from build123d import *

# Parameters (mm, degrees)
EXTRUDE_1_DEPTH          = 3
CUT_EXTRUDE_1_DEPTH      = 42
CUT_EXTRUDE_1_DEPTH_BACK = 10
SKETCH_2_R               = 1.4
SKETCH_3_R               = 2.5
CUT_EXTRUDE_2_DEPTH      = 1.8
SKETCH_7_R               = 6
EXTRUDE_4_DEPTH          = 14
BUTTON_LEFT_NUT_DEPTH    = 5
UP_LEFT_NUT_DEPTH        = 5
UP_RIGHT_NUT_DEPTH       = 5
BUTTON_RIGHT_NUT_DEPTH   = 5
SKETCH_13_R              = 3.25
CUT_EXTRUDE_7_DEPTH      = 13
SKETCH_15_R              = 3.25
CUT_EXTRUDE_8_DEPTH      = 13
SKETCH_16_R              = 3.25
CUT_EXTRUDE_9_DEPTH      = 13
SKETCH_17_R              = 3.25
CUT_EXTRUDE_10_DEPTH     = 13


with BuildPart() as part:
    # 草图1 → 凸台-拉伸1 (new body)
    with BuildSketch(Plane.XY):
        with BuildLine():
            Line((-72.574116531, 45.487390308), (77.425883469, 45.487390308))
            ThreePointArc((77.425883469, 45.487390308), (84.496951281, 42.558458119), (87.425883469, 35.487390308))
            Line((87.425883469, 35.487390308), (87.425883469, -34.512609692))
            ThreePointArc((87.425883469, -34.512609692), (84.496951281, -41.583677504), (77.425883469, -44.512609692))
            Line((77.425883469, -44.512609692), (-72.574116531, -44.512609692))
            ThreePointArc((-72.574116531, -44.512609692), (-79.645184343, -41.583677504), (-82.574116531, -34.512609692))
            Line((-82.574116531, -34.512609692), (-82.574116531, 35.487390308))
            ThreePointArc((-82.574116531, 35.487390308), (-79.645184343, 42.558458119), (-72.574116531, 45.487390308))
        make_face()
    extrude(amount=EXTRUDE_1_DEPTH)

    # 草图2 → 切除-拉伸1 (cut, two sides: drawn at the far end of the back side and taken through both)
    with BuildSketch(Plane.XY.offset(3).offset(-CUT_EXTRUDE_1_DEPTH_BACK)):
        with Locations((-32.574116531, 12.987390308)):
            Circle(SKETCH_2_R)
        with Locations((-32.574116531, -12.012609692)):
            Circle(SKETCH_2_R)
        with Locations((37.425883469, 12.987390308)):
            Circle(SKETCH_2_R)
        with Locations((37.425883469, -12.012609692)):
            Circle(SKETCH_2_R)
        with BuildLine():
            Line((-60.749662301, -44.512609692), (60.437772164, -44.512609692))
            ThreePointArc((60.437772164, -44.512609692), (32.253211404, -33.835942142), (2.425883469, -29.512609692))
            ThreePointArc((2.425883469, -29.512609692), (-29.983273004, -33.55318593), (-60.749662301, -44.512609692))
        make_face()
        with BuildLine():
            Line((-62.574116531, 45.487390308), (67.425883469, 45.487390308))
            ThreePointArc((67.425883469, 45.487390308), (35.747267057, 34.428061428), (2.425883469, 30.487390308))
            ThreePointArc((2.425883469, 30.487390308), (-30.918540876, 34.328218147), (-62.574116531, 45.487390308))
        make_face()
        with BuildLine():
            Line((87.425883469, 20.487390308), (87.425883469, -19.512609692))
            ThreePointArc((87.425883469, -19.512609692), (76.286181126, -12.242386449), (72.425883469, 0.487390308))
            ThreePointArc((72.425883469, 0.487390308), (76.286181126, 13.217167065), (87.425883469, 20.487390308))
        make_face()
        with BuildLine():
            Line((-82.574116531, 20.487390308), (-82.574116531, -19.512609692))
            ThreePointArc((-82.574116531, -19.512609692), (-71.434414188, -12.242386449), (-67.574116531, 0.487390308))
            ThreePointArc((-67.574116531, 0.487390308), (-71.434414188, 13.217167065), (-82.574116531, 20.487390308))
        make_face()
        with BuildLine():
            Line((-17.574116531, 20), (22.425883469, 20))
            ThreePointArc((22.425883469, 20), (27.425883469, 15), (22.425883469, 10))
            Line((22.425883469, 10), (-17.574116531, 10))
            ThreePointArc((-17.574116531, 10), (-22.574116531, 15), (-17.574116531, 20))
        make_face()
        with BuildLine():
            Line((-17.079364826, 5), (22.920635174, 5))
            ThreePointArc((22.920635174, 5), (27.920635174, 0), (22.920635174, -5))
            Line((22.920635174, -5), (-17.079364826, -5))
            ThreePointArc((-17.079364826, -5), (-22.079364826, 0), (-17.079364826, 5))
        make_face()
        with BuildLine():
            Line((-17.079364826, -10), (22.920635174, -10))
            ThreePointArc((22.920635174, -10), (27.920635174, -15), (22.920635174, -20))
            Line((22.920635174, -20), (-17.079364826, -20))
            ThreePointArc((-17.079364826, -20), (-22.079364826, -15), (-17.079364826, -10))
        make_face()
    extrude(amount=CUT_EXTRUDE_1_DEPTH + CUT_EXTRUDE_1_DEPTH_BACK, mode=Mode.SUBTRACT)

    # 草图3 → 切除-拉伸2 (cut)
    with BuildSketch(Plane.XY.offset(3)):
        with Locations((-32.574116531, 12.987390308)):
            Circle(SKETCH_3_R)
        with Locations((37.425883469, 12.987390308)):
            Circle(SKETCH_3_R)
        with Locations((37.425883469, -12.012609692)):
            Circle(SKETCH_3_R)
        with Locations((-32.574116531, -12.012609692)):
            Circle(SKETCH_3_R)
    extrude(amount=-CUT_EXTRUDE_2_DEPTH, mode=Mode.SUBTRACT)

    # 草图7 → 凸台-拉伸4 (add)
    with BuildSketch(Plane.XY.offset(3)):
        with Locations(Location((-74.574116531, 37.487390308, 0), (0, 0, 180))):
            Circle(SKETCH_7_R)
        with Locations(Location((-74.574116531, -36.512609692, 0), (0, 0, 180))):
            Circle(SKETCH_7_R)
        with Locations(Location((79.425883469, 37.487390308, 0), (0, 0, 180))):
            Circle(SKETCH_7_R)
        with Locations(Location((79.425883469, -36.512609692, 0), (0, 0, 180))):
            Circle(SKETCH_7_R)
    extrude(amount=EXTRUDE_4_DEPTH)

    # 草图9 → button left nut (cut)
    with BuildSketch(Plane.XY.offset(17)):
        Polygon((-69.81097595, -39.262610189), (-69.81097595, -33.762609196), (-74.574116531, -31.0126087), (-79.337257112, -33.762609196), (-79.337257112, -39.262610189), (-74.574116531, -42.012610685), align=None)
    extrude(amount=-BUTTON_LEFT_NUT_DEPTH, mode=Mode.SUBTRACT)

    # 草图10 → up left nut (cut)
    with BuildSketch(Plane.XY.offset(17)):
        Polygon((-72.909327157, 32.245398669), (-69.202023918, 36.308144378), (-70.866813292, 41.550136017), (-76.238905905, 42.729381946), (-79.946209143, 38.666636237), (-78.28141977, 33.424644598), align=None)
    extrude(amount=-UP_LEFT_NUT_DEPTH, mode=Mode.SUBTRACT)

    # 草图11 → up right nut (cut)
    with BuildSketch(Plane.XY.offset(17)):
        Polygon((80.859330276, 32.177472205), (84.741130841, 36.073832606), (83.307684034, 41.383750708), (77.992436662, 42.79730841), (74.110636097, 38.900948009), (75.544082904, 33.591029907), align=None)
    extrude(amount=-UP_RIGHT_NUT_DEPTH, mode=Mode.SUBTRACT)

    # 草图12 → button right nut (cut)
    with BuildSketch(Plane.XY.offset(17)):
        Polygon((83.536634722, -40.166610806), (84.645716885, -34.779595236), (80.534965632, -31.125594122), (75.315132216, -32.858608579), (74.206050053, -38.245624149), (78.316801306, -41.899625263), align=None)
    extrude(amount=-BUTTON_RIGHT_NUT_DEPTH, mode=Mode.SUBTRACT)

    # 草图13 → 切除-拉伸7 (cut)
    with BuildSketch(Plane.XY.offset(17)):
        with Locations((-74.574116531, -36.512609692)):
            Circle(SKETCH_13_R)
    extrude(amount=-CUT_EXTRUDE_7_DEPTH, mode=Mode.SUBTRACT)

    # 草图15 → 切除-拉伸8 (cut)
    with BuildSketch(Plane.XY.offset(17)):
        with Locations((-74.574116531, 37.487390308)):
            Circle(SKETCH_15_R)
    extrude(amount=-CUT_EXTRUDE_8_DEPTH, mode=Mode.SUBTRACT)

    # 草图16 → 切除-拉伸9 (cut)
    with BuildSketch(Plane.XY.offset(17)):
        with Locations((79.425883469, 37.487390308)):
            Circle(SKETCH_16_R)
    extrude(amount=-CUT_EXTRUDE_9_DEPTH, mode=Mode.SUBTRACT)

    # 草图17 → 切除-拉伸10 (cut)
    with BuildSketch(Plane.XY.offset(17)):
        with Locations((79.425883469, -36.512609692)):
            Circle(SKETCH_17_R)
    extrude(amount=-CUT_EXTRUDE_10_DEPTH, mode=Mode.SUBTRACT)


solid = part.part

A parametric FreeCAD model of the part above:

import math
import FreeCAD as App
import Part
import Sketcher

V = App.Vector
Q = App.Units.Quantity

doc = App.newDocument("Part")
params = doc.addObject("Spreadsheet::Sheet", "Params")
for row, (alias, value) in enumerate([
    ("sketch1_radius", "10 mm"),
    ("sketch1_width", "150 mm"),
    ("sketch1_height", "70 mm"),
    ("pad1_length", "3 mm"),
    ("sketch2_radius", "150 mm"),
    ("sketch2_radius2", "5 mm"),
    ("sketch2_diameter", "2.8 mm"),
    ("sketch2_width", "130 mm"),
    ("sketch2_width2", "40 mm"),
    ("sketch3_diameter", "5 mm"),
    ("pocket2_length", "1.8 mm"),
    ("sketch4_diameter", "12 mm"),
    ("pad2_length", "14 mm"),
    ("sketch5_height", "5.500001 mm"),
    ("pocket3_length", "5 mm"),
    ("sketch6_length", "5.5 mm"),
    ("pocket4_length", "5 mm"),
    ("sketch7_length", "5.5 mm"),
    ("pocket5_length", "5 mm"),
    ("sketch8_length", "5.5 mm"),
    ("pocket6_length", "5 mm"),
    ("sketch9_diameter", "6.5 mm"),
    ("pocket7_length", "13 mm"),
    ("sketch10_diameter", "6.5 mm"),
    ("pocket8_length", "13 mm"),
    ("sketch11_diameter", "6.5 mm"),
    ("pocket9_length", "13 mm"),
    ("sketch12_diameter", "6.5 mm"),
    ("pocket10_length", "13 mm"),
], start=1):
    params.set(f"A{row}", alias)
    params.set(f"B{row}", "=" + value)
    params.setAlias(f"B{row}", alias)

body = doc.addObject("PartDesign::Body", "Body")

# Sketch on XY plane
sketch1 = body.newObject("Sketcher::SketchObject", "Sketch")
sketch1.AttachmentSupport = (doc.getObject("XY_Plane"), [""])
sketch1.MapMode = "FlatFace"
sketch1.addGeometry([
    Part.LineSegment(V(77, 45, 0), V(-73, 45, 0)),  # 0
    Part.ArcOfCircle(Part.Circle(V(-73, 35, 0), V(0, 0, 1), 10), math.radians(90), math.radians(180)),  # 1
    Part.LineSegment(V(-83, 35, 0), V(-83, -35, 0)),  # 2
    Part.ArcOfCircle(Part.Circle(V(-73, -35, 0), V(0, 0, 1), 10), math.radians(180), math.radians(270)),  # 3
    Part.LineSegment(V(-73, -45, 0), V(77, -45, 0)),  # 4
    Part.ArcOfCircle(Part.Circle(V(77, -35, 0), V(0, 0, 1), 10), math.radians(-90), math.radians(0)),  # 5
    Part.LineSegment(V(87, -35, 0), V(87, 35, 0)),  # 6
    Part.ArcOfCircle(Part.Circle(V(77, 35, 0), V(0, 0, 1), 10), math.radians(0), math.radians(90)),  # 7
], False)
sketch1.addConstraint([
    Sketcher.Constraint("Tangent", 0, 2, 1, 1),
    Sketcher.Constraint("Tangent", 1, 2, 2, 1),
    Sketcher.Constraint("Tangent", 2, 2, 3, 1),
    Sketcher.Constraint("Tangent", 3, 2, 4, 1),
    Sketcher.Constraint("Tangent", 4, 2, 5, 1),
    Sketcher.Constraint("Tangent", 5, 2, 6, 1),
    Sketcher.Constraint("Tangent", 6, 2, 7, 1),
    Sketcher.Constraint("Tangent", 7, 2, 0, 1),
    Sketcher.Constraint("Horizontal", 0),
    Sketcher.Constraint("Vertical", 2),
    Sketcher.Constraint("Horizontal", 4),
    Sketcher.Constraint("Vertical", 6),
    Sketcher.Constraint("Equal", 1, 3),
    Sketcher.Constraint("Equal", 3, 5),
    Sketcher.Constraint("Equal", 5, 7),
    Sketcher.Constraint("Radius", 1, 10.0),
    Sketcher.Constraint("DistanceX", 0, 2, 0, 1, 150.0),
    Sketcher.Constraint("DistanceY", 2, 2, 2, 1, 70.0),
    Sketcher.Constraint("DistanceY", -1, 1, 1, 3, 35.48739),
    Sketcher.Constraint("DistanceX", 1, 3, -1, 1, 72.574117),
])
sketch1.setExpression("Constraints[15]", "Params.sketch1_radius")
sketch1.setExpression("Constraints[16]", "Params.sketch1_width")
sketch1.setExpression("Constraints[17]", "Params.sketch1_height")
pad1 = body.newObject("PartDesign::Pad", "Pad")
pad1.Profile = sketch1
pad1.setExpression("Length", "Params.pad1_length")

# Sketch on XY plane
sketch2 = body.newObject("Sketcher::SketchObject", "Sketch001")
sketch2.AttachmentSupport = (doc.getObject("XY_Plane"), [""])
sketch2.MapMode = "FlatFace"
sketch2.AttachmentOffset = App.Placement(V(0, 0, 3), App.Rotation())
sketch2.addGeometry([
    Part.Circle(V(-32.6, 13, 0), V(0, 0, 1), 1.4),  # 0
    Part.Circle(V(-32.6, -12, 0), V(0, 0, 1), 1.4),  # 1
    Part.Circle(V(37.4, 13, 0), V(0, 0, 1), 1.4),  # 2
    Part.Circle(V(37.4, -12, 0), V(0, 0, 1), 1.4),  # 3
    Part.LineSegment(V(-60.7, -44.5, 0), V(60.4, -44.5, 0)),  # 4
    Part.ArcOfCircle(Part.Circle(V(-2.4, -167.8, 0), V(0, 0, 1), 138.4), math.radians(63), math.radians(88)),  # 5
    Part.ArcOfCircle(Part.Circle(V(4.7, -179.5, 0), V(0, 0, 1), 150), math.radians(91), math.radians(116)),  # 6
    Part.LineSegment(V(67.4, 45.5, 0), V(-62.6, 45.5, 0)),  # 7
    Part.ArcOfCircle(Part.Circle(V(2.8, 180.5, 0), V(0, 0, 1), 150), math.radians(-116), math.radians(-90)),  # 8
    Part.ArcOfCircle(Part.Circle(V(1.1, 184.6, 0), V(0, 0, 1), 154.1), math.radians(-90), math.radians(-65)),  # 9
    Part.LineSegment(V(87.4, -19.5, 0), V(87.4, 20.5, 0)),  # 10
    Part.ArcOfCircle(Part.Circle(V(91.8, 1.5, 0), V(0, 0, 1), 19.4), math.radians(103), math.radians(183)),  # 11
    Part.ArcOfCircle(Part.Circle(V(91.8, -0.6, 0), V(0, 0, 1), 19.4), math.radians(177), math.radians(257)),  # 12
    Part.LineSegment(V(-82.6, 20.5, 0), V(-82.6, -19.5, 0)),  # 13
    Part.ArcOfCircle(Part.Circle(V(-87, -0.6, 0), V(0, 0, 1), 19.4), math.radians(-77), math.radians(3)),  # 14
    Part.ArcOfCircle(Part.Circle(V(-87, 1.5, 0), V(0, 0, 1), 19.4), math.radians(-3), math.radians(77)),  # 15
    Part.LineSegment(V(22.4, 20, 0), V(-17.6, 20, 0)),  # 16
    Part.ArcOfCircle(Part.Circle(V(-17.6, 15, 0), V(0, 0, 1), 5), math.radians(90), math.radians(270)),  # 17
    Part.LineSegment(V(-17.6, 10, 0), V(22.4, 10, 0)),  # 18
    Part.ArcOfCircle(Part.Circle(V(22.4, 15, 0), V(0, 0, 1), 5), math.radians(-90), math.radians(90)),  # 19
    Part.LineSegment(V(22.9, 5, 0), V(-17.1, 5, 0)),  # 20
    Part.ArcOfCircle(Part.Circle(V(-17.1, 0, 0), V(0, 0, 1), 5), math.radians(90), math.radians(270)),  # 21
    Part.LineSegment(V(-17.1, -5, 0), V(22.9, -5, 0)),  # 22
    Part.ArcOfCircle(Part.Circle(V(22.9, 0, 0), V(0, 0, 1), 5), math.radians(-90), math.radians(90)),  # 23
    Part.LineSegment(V(22.9, -10, 0), V(-17.1, -10, 0)),  # 24
    Part.ArcOfCircle(Part.Circle(V(-17.1, -15, 0), V(0, 0, 1), 5), math.radians(90), math.radians(270)),  # 25
    Part.LineSegment(V(-17.1, -20, 0), V(22.9, -20, 0)),  # 26
    Part.ArcOfCircle(Part.Circle(V(22.9, -15, 0), V(0, 0, 1), 5), math.radians(-90), math.radians(90)),  # 27
], False)
sketch2.addConstraint([
    Sketcher.Constraint("Coincident", 4, 2, 5, 1),
    Sketcher.Constraint("Coincident", 5, 2, 6, 1),
    Sketcher.Constraint("Coincident", 6, 2, 4, 1),
    Sketcher.Constraint("Coincident", 7, 2, 8, 1),
    Sketcher.Constraint("Coincident", 8, 2, 9, 1),
    Sketcher.Constraint("Coincident", 9, 2, 7, 1),
    Sketcher.Constraint("Coincident", 10, 2, 11, 1),
    Sketcher.Constraint("Coincident", 11, 2, 12, 1),
    Sketcher.Constraint("Coincident", 12, 2, 10, 1),
    Sketcher.Constraint("Coincident", 13, 2, 14, 1),
    Sketcher.Constraint("Coincident", 14, 2, 15, 1),
    Sketcher.Constraint("Coincident", 15, 2, 13, 1),
    Sketcher.Constraint("Tangent", 16, 2, 17, 1),
    Sketcher.Constraint("Tangent", 17, 2, 18, 1),
    Sketcher.Constraint("Tangent", 18, 2, 19, 1),
    Sketcher.Constraint("Tangent", 19, 2, 16, 1),
    Sketcher.Constraint("Tangent", 20, 2, 21, 1),
    Sketcher.Constraint("Tangent", 21, 2, 22, 1),
    Sketcher.Constraint("Tangent", 22, 2, 23, 1),
    Sketcher.Constraint("Tangent", 23, 2, 20, 1),
    Sketcher.Constraint("Tangent", 24, 2, 25, 1),
    Sketcher.Constraint("Tangent", 25, 2, 26, 1),
    Sketcher.Constraint("Tangent", 26, 2, 27, 1),
    Sketcher.Constraint("Tangent", 27, 2, 24, 1),
    Sketcher.Constraint("Horizontal", 4),
    Sketcher.Constraint("Horizontal", 7),
    Sketcher.Constraint("Vertical", 10),
    Sketcher.Constraint("Vertical", 13),
    Sketcher.Constraint("Horizontal", 16),
    Sketcher.Constraint("Horizontal", 18),
    Sketcher.Constraint("Horizontal", 20),
    Sketcher.Constraint("Horizontal", 22),
    Sketcher.Constraint("Horizontal", 24),
    Sketcher.Constraint("Horizontal", 26),
    Sketcher.Constraint("Equal", 0, 1),
    Sketcher.Constraint("Equal", 1, 2),
    Sketcher.Constraint("Equal", 2, 3),
    Sketcher.Constraint("Equal", 6, 8),
    Sketcher.Constraint("Equal", 11, 12),
    Sketcher.Constraint("Equal", 12, 14),
    Sketcher.Constraint("Equal", 14, 15),
    Sketcher.Constraint("Equal", 19, 21),
    Sketcher.Constraint("Equal", 23, 25),
    Sketcher.Constraint("PointOnObject", 21, 3, -1),
    Sketcher.Constraint("Horizontal", 0, 3, 2, 3),
    Sketcher.Constraint("Horizontal", 1, 3, 3, 3),
    Sketcher.Constraint("Horizontal", 12, 3, 14, 3),
    Sketcher.Constraint("Horizontal", 11, 3, 15, 3),
    Sketcher.Constraint("Horizontal", 12, 2, 13, 2),
    Sketcher.Constraint("Horizontal", 11, 2, 14, 2),
    Sketcher.Constraint("Vertical", 0, 3, 1, 3),
    Sketcher.Constraint("Vertical", 2, 3, 3, 3),
    Sketcher.Constraint("Vertical", 11, 3, 12, 3),
    Sketcher.Constraint("Vertical", 21, 3, 25, 3),
    Sketcher.Constraint("Vertical", 23, 3, 27, 3),
    Sketcher.Constraint("Vertical", 5, 2, 8, 2),
    Sketcher.Constraint("Equal", 18, 20),
    Sketcher.Constraint("Equal", 26, 10),
    Sketcher.Constraint("Radius", 6, 150.0),
    Sketcher.Constraint("Radius", 17, 5.0),
    Sketcher.Constraint("Diameter", 0, 2.8),
    Sketcher.Constraint("DistanceX", 7, 2, 7, 1, 130.0),
    Sketcher.Constraint("DistanceX", 16, 2, 16, 1, 40.0),
    Sketcher.Constraint("DistanceY", -1, 1, 17, 3, 15.0),
    Sketcher.Constraint("DistanceY", 25, 3, -1, 1, 15.0),
    Sketcher.Constraint("DistanceY", 1, 3, 0, 3, 25.0),
    Sketcher.Constraint("DistanceX", 0, 3, 2, 3, 70.0),
    Sketcher.Constraint("DistanceX", 0, 3, 17, 3, 15.0),
    Sketcher.Constraint("DistanceX", 5, 2, 3, 3, 35.0),
    Sketcher.Constraint("DistanceX", 7, 2, 0, 3, 30.0),
    Sketcher.Constraint("DistanceX", 9, 2, 10, 2, 20.0),
    Sketcher.Constraint("DistanceY", 10, 2, 9, 2, 25.0),
    Sketcher.Constraint("DistanceX", 11, 2, 10, 2, 15.0),
    Sketcher.Constraint("DistanceY", 4, 2, 12, 2, 25.0),
    Sketcher.Constraint("DistanceX", 13, 2, 1, 3, 50.0),
    Sketcher.Constraint("DistanceY", 4, 2, 3, 3, 32.5),
    Sketcher.Constraint("DistanceY", 5, 2, 3, 3, 17.5),
    Sketcher.Constraint("DistanceY", 0, 3, 8, 2, 17.5),
    Sketcher.Constraint("Radius", 9, 154.103768),
    Sketcher.Constraint("Radius", 5, 138.421457),
    Sketcher.Constraint("Radius", 11, 19.446548),
    Sketcher.Constraint("DistanceX", 4, 1, 4, 2, 121.187434),
    Sketcher.Constraint("DistanceY", -1, 1, 0, 3, 12.98739),
    Sketcher.Constraint("DistanceY", 5, 3, -1, 1, 167.84997),
    Sketcher.Constraint("DistanceX", -1, 1, 9, 3, 1.09557),
    Sketcher.Constraint("DistanceX", 17, 3, 21, 3, 0.494752),
])
sketch2.setExpression("Constraints[58]", "Params.sketch2_radius")
sketch2.setExpression("Constraints[59]", "Params.sketch2_radius2")
sketch2.setExpression("Constraints[60]", "Params.sketch2_diameter")
sketch2.setExpression("Constraints[61]", "Params.sketch2_width")
sketch2.setExpression("Constraints[62]", "Params.sketch2_width2")
pocket1 = body.newObject("PartDesign::Pocket", "Pocket")
pocket1.Profile = sketch2
pocket1.Type = "ThroughAll"
pocket1.Midplane = True

# Sketch on XY plane
sketch3 = body.newObject("Sketcher::SketchObject", "Sketch002")
sketch3.AttachmentSupport = (doc.getObject("XY_Plane"), [""])
sketch3.MapMode = "FlatFace"
sketch3.AttachmentOffset = App.Placement(V(0, 0, 3), App.Rotation())
sketch3.addGeometry([
    Part.Circle(V(-32.6, 13, 0), V(0, 0, 1), 2.5),
    Part.Circle(V(37.4, 13, 0), V(0, 0, 1), 2.5),
    Part.Circle(V(37.4, -12, 0), V(0, 0, 1), 2.5),
    Part.Circle(V(-32.6, -12, 0), V(0, 0, 1), 2.5),
], False)
sketch3.addConstraint([
    Sketcher.Constraint("Equal", 0, 1),
    Sketcher.Constraint("Equal", 1, 2),
    Sketcher.Constraint("Equal", 2, 3),
    Sketcher.Constraint("Horizontal", 0, 3, 1, 3),
    Sketcher.Constraint("Horizontal", 2, 3, 3, 3),
    Sketcher.Constraint("Vertical", 1, 3, 2, 3),
    Sketcher.Constraint("Vertical", 0, 3, 3, 3),
    Sketcher.Constraint("Diameter", 0, 5.0),
    Sketcher.Constraint("DistanceX", 0, 3, 1, 3, 70.0),
    Sketcher.Constraint("DistanceY", 2, 3, 1, 3, 25.0),
    Sketcher.Constraint("DistanceY", -1, 1, 0, 3, 12.98739),
    Sketcher.Constraint("DistanceX", 0, 3, -1, 1, 32.574117),
])
sketch3.setExpression("Constraints[7]", "Params.sketch3_diameter")
pocket2 = body.newObject("PartDesign::Pocket", "Pocket001")
pocket2.Profile = sketch3
pocket2.setExpression("Length", "Params.pocket2_length")

# Sketch on XY plane
sketch4 = body.newObject("Sketcher::SketchObject", "Sketch003")
sketch4.AttachmentSupport = (doc.getObject("XY_Plane"), [""])
sketch4.MapMode = "FlatFace"
sketch4.AttachmentOffset = App.Placement(V(0, 0, 3), App.Rotation())
sketch4.addGeometry([
    Part.Circle(V(-75, 37, 0), V(0, 0, 1), 6),
    Part.Circle(V(-75, -37, 0), V(0, 0, 1), 6),
    Part.Circle(V(79, 37, 0), V(0, 0, 1), 6),
    Part.Circle(V(79, -37, 0), V(0, 0, 1), 6),
], False)
sketch4.addConstraint([
    Sketcher.Constraint("Equal", 0, 1),
    Sketcher.Constraint("Equal", 1, 2),
    Sketcher.Constraint("Equal", 2, 3),
    Sketcher.Constraint("Horizontal", 0, 3, 2, 3),
    Sketcher.Constraint("Horizontal", 1, 3, 3, 3),
    Sketcher.Constraint("Vertical", 0, 3, 1, 3),
    Sketcher.Constraint("Vertical", 2, 3, 3, 3),
    Sketcher.Constraint("Diameter", 0, 12.0),
    Sketcher.Constraint("DistanceY", 1, 3, 0, 3, 74.0),
    Sketcher.Constraint("DistanceX", 0, 3, 2, 3, 154.0),
    Sketcher.Constraint("DistanceY", -1, 1, 0, 3, 37.48739),
    Sketcher.Constraint("DistanceX", 0, 3, -1, 1, 74.574117),
])
sketch4.setExpression("Constraints[7]", "Params.sketch4_diameter")
pad2 = body.newObject("PartDesign::Pad", "Pad001")
pad2.Profile = sketch4
pad2.setExpression("Length", "Params.pad2_length")

# Sketch on XY plane
sketch5 = body.newObject("Sketcher::SketchObject", "Sketch004")
sketch5.AttachmentSupport = (doc.getObject("XY_Plane"), [""])
sketch5.MapMode = "FlatFace"
sketch5.AttachmentOffset = App.Placement(V(0, 0, 17), App.Rotation())
sketch5.addGeometry([
    Part.LineSegment(V(-70, -39, 0), V(-70, -34, 0)),  # 0
    Part.LineSegment(V(-70, -34, 0), V(-75, -31, 0)),  # 1
    Part.LineSegment(V(-75, -31, 0), V(-79, -34, 0)),  # 2
    Part.LineSegment(V(-79, -34, 0), V(-79, -39, 0)),  # 3
    Part.LineSegment(V(-79, -39, 0), V(-75, -42, 0)),  # 4
    Part.LineSegment(V(-75, -42, 0), V(-70, -39, 0)),  # 5
], False)
sketch5.addConstraint([
    Sketcher.Constraint("Coincident", 0, 2, 1, 1),
    Sketcher.Constraint("Coincident", 1, 2, 2, 1),
    Sketcher.Constraint("Coincident", 2, 2, 3, 1),
    Sketcher.Constraint("Coincident", 3, 2, 4, 1),
    Sketcher.Constraint("Coincident", 4, 2, 5, 1),
    Sketcher.Constraint("Coincident", 5, 2, 0, 1),
    Sketcher.Constraint("Vertical", 0),
    Sketcher.Constraint("Vertical", 3),
    Sketcher.Constraint("Parallel", 1, 4),
    Sketcher.Constraint("Parallel", 2, 5),
    Sketcher.Constraint("Horizontal", 0, 2, 2, 2),
    Sketcher.Constraint("Horizontal", 3, 2, 5, 2),
    Sketcher.Constraint("Vertical", 1, 2, 4, 2),
    Sketcher.Constraint("Angle", 1, Q("150 deg")),
    Sketcher.Constraint("DistanceY", 0, 1, 0, 2, 5.500001),
    Sketcher.Constraint("DistanceY", 4, 2, 1, 2, 11.000002),
    Sketcher.Constraint("DistanceY", 0, 2, -1, 1, 33.762609),
    Sketcher.Constraint("DistanceX", 0, 2, -1, 1, 69.810976),
])
sketch5.setExpression("Constraints[14]", "Params.sketch5_height")
pocket3 = body.newObject("PartDesign::Pocket", "Pocket002")
pocket3.Profile = sketch5
pocket3.setExpression("Length", "Params.pocket3_length")

# Sketch on XY plane
sketch6 = body.newObject("Sketcher::SketchObject", "Sketch005")
sketch6.AttachmentSupport = (doc.getObject("XY_Plane"), [""])
sketch6.MapMode = "FlatFace"
sketch6.AttachmentOffset = App.Placement(V(0, 0, 17), App.Rotation())
sketch6.addGeometry([
    Part.LineSegment(V(-73, 32, 0), V(-69, 36, 0)),  # 0
    Part.LineSegment(V(-69, 36, 0), V(-71, 42, 0)),  # 1
    Part.LineSegment(V(-71, 42, 0), V(-76, 43, 0)),  # 2
    Part.LineSegment(V(-76, 43, 0), V(-80, 39, 0)),  # 3
    Part.LineSegment(V(-80, 39, 0), V(-78, 33, 0)),  # 4
    Part.LineSegment(V(-78, 33, 0), V(-73, 32, 0)),  # 5
], False)
sketch6.addConstraint([
    Sketcher.Constraint("Coincident", 0, 2, 1, 1),
    Sketcher.Constraint("Coincident", 1, 2, 2, 1),
    Sketcher.Constraint("Coincident", 2, 2, 3, 1),
    Sketcher.Constraint("Coincident", 3, 2, 4, 1),
    Sketcher.Constraint("Coincident", 4, 2, 5, 1),
    Sketcher.Constraint("Coincident", 5, 2, 0, 1),
    Sketcher.Constraint("Parallel", 0, 3),
    Sketcher.Constraint("Parallel", 1, 4),
    Sketcher.Constraint("Parallel", 2, 5),
    Sketcher.Constraint("Equal", 0, 1),
    Sketcher.Constraint("Equal", 1, 2),
    Sketcher.Constraint("Equal", 2, 3),
    Sketcher.Constraint("Distance", 0, 5.5),
    Sketcher.Constraint("DistanceY", -1, 1, 5, 2, 32.245399),
    Sketcher.Constraint("DistanceY", 3, 2, 1, 2, 2.8835),
    Sketcher.Constraint("DistanceY", -1, 1, 2, 2, 42.729382),
    Sketcher.Constraint("DistanceX", 3, 2, -1, 1, 79.946209),
    Sketcher.Constraint("DistanceX", 4, 2, -1, 1, 78.28142),
])
sketch6.setExpression("Constraints[12]", "Params.sketch6_length")
pocket4 = body.newObject("PartDesign::Pocket", "Pocket003")
pocket4.Profile = sketch6
pocket4.setExpression("Length", "Params.pocket4_length")

# Sketch on XY plane
sketch7 = body.newObject("Sketcher::SketchObject", "Sketch006")
sketch7.AttachmentSupport = (doc.getObject("XY_Plane"), [""])
sketch7.MapMode = "FlatFace"
sketch7.AttachmentOffset = App.Placement(V(0, 0, 17), App.Rotation())
sketch7.addGeometry([
    Part.LineSegment(V(81, 32, 0), V(85, 36, 0)),  # 0
    Part.LineSegment(V(85, 36, 0), V(83, 41, 0)),  # 1
    Part.LineSegment(V(83, 41, 0), V(78, 43, 0)),  # 2
    Part.LineSegment(V(78, 43, 0), V(74, 39, 0)),  # 3
    Part.LineSegment(V(74, 39, 0), V(76, 34, 0)),  # 4
    Part.LineSegment(V(76, 34, 0), V(81, 32, 0)),  # 5
], False)
sketch7.addConstraint([
    Sketcher.Constraint("Coincident", 0, 2, 1, 1),
    Sketcher.Constraint("Coincident", 1, 2, 2, 1),
    Sketcher.Constraint("Coincident", 2, 2, 3, 1),
    Sketcher.Constraint("Coincident", 3, 2, 4, 1),
    Sketcher.Constraint("Coincident", 4, 2, 5, 1),
    Sketcher.Constraint("Coincident", 5, 2, 0, 1),
    Sketcher.Constraint("Parallel", 0, 3),
    Sketcher.Constraint("Parallel", 1, 4),
    Sketcher.Constraint("Parallel", 2, 5),
    Sketcher.Constraint("Equal", 0, 1),
    Sketcher.Constraint("Equal", 1, 2),
    Sketcher.Constraint("Equal", 2, 3),
    Sketcher.Constraint("Distance", 0, 5.5),
    Sketcher.Constraint("DistanceX", 3, 2, 2, 2, 3.881801),
    Sketcher.Constraint("DistanceX", 4, 2, 1, 2, 7.763601),
    Sketcher.Constraint("DistanceX", -1, 1, 0, 2, 84.741131),
    Sketcher.Constraint("DistanceY", -1, 1, 1, 2, 41.383751),
    Sketcher.Constraint("DistanceY", -1, 1, 2, 2, 42.797308),
])
sketch7.setExpression("Constraints[12]", "Params.sketch7_length")
pocket5 = body.newObject("PartDesign::Pocket", "Pocket004")
pocket5.Profile = sketch7
pocket5.setExpression("Length", "Params.pocket5_length")

# Sketch on XY plane
sketch8 = body.newObject("Sketcher::SketchObject", "Sketch007")
sketch8.AttachmentSupport = (doc.getObject("XY_Plane"), [""])
sketch8.MapMode = "FlatFace"
sketch8.AttachmentOffset = App.Placement(V(0, 0, 17), App.Rotation())
sketch8.addGeometry([
    Part.LineSegment(V(84, -40, 0), V(85, -35, 0)),  # 0
    Part.LineSegment(V(85, -35, 0), V(81, -31, 0)),  # 1
    Part.LineSegment(V(81, -31, 0), V(75, -33, 0)),  # 2
    Part.LineSegment(V(75, -33, 0), V(74, -38, 0)),  # 3
    Part.LineSegment(V(74, -38, 0), V(78, -42, 0)),  # 4
    Part.LineSegment(V(78, -42, 0), V(84, -40, 0)),  # 5
], False)
sketch8.addConstraint([
    Sketcher.Constraint("Coincident", 0, 2, 1, 1),
    Sketcher.Constraint("Coincident", 1, 2, 2, 1),
    Sketcher.Constraint("Coincident", 2, 2, 3, 1),
    Sketcher.Constraint("Coincident", 3, 2, 4, 1),
    Sketcher.Constraint("Coincident", 4, 2, 5, 1),
    Sketcher.Constraint("Coincident", 5, 2, 0, 1),
    Sketcher.Constraint("Parallel", 0, 3),
    Sketcher.Constraint("Parallel", 1, 4),
    Sketcher.Constraint("Parallel", 2, 5),
    Sketcher.Constraint("Equal", 0, 1),
    Sketcher.Constraint("Equal", 1, 2),
    Sketcher.Constraint("Equal", 2, 3),
    Sketcher.Constraint("Distance", 0, 5.5),
    Sketcher.Constraint("DistanceY", 0, 2, 1, 2, 3.654001),
    Sketcher.Constraint("DistanceX", -1, 1, 4, 2, 78.316801),
    Sketcher.Constraint("DistanceY", 2, 2, -1, 1, 32.858609),
    Sketcher.Constraint("DistanceY", 5, 2, -1, 1, 40.166611),
    Sketcher.Constraint("DistanceY", 3, 2, 1, 2, 7.12003),
])
sketch8.setExpression("Constraints[12]", "Params.sketch8_length")
pocket6 = body.newObject("PartDesign::Pocket", "Pocket005")
pocket6.Profile = sketch8
pocket6.setExpression("Length", "Params.pocket6_length")

# Sketch on XY plane
sketch9 = body.newObject("Sketcher::SketchObject", "Sketch008")
sketch9.AttachmentSupport = (doc.getObject("XY_Plane"), [""])
sketch9.MapMode = "FlatFace"
sketch9.AttachmentOffset = App.Placement(V(0, 0, 17), App.Rotation())
sketch9.addGeometry(Part.Circle(V(-74.6, -36.5, 0), V(0, 0, 1), 3.2), False)
sketch9.addConstraint([
    Sketcher.Constraint("Diameter", 0, 6.5),
    Sketcher.Constraint("DistanceY", 0, 3, -1, 1, 36.51261),
    Sketcher.Constraint("DistanceX", 0, 3, -1, 1, 74.574117),
])
sketch9.setExpression("Constraints[0]", "Params.sketch9_diameter")
pocket7 = body.newObject("PartDesign::Pocket", "Pocket006")
pocket7.Profile = sketch9
pocket7.setExpression("Length", "Params.pocket7_length")

# Sketch on XY plane
sketch10 = body.newObject("Sketcher::SketchObject", "Sketch009")
sketch10.AttachmentSupport = (doc.getObject("XY_Plane"), [""])
sketch10.MapMode = "FlatFace"
sketch10.AttachmentOffset = App.Placement(V(0, 0, 17), App.Rotation())
sketch10.addGeometry(Part.Circle(V(-74.6, 37.5, 0), V(0, 0, 1), 3.2), False)
sketch10.addConstraint([
    Sketcher.Constraint("Diameter", 0, 6.5),
    Sketcher.Constraint("DistanceY", -1, 1, 0, 3, 37.48739),
    Sketcher.Constraint("DistanceX", 0, 3, -1, 1, 74.574117),
])
sketch10.setExpression("Constraints[0]", "Params.sketch10_diameter")
pocket8 = body.newObject("PartDesign::Pocket", "Pocket007")
pocket8.Profile = sketch10
pocket8.setExpression("Length", "Params.pocket8_length")

# Sketch on XY plane
sketch11 = body.newObject("Sketcher::SketchObject", "Sketch010")
sketch11.AttachmentSupport = (doc.getObject("XY_Plane"), [""])
sketch11.MapMode = "FlatFace"
sketch11.AttachmentOffset = App.Placement(V(0, 0, 17), App.Rotation())
sketch11.addGeometry(Part.Circle(V(79.4, 37.5, 0), V(0, 0, 1), 3.2), False)
sketch11.addConstraint([
    Sketcher.Constraint("Diameter", 0, 6.5),
    Sketcher.Constraint("DistanceY", -1, 1, 0, 3, 37.48739),
    Sketcher.Constraint("DistanceX", -1, 1, 0, 3, 79.425883),
])
sketch11.setExpression("Constraints[0]", "Params.sketch11_diameter")
pocket9 = body.newObject("PartDesign::Pocket", "Pocket008")
pocket9.Profile = sketch11
pocket9.setExpression("Length", "Params.pocket9_length")

# Sketch on XY plane
sketch12 = body.newObject("Sketcher::SketchObject", "Sketch011")
sketch12.AttachmentSupport = (doc.getObject("XY_Plane"), [""])
sketch12.MapMode = "FlatFace"
sketch12.AttachmentOffset = App.Placement(V(0, 0, 17), App.Rotation())
sketch12.addGeometry(Part.Circle(V(79.4, -36.5, 0), V(0, 0, 1), 3.2), False)
sketch12.addConstraint([
    Sketcher.Constraint("Diameter", 0, 6.5),
    Sketcher.Constraint("DistanceY", 0, 3, -1, 1, 36.51261),
    Sketcher.Constraint("DistanceX", -1, 1, 0, 3, 79.425883),
])
sketch12.setExpression("Constraints[0]", "Params.sketch12_diameter")
pocket10 = body.newObject("PartDesign::Pocket", "Pocket009")
pocket10.Profile = sketch12
pocket10.setExpression("Length", "Params.pocket10_length")

doc.recompute()
